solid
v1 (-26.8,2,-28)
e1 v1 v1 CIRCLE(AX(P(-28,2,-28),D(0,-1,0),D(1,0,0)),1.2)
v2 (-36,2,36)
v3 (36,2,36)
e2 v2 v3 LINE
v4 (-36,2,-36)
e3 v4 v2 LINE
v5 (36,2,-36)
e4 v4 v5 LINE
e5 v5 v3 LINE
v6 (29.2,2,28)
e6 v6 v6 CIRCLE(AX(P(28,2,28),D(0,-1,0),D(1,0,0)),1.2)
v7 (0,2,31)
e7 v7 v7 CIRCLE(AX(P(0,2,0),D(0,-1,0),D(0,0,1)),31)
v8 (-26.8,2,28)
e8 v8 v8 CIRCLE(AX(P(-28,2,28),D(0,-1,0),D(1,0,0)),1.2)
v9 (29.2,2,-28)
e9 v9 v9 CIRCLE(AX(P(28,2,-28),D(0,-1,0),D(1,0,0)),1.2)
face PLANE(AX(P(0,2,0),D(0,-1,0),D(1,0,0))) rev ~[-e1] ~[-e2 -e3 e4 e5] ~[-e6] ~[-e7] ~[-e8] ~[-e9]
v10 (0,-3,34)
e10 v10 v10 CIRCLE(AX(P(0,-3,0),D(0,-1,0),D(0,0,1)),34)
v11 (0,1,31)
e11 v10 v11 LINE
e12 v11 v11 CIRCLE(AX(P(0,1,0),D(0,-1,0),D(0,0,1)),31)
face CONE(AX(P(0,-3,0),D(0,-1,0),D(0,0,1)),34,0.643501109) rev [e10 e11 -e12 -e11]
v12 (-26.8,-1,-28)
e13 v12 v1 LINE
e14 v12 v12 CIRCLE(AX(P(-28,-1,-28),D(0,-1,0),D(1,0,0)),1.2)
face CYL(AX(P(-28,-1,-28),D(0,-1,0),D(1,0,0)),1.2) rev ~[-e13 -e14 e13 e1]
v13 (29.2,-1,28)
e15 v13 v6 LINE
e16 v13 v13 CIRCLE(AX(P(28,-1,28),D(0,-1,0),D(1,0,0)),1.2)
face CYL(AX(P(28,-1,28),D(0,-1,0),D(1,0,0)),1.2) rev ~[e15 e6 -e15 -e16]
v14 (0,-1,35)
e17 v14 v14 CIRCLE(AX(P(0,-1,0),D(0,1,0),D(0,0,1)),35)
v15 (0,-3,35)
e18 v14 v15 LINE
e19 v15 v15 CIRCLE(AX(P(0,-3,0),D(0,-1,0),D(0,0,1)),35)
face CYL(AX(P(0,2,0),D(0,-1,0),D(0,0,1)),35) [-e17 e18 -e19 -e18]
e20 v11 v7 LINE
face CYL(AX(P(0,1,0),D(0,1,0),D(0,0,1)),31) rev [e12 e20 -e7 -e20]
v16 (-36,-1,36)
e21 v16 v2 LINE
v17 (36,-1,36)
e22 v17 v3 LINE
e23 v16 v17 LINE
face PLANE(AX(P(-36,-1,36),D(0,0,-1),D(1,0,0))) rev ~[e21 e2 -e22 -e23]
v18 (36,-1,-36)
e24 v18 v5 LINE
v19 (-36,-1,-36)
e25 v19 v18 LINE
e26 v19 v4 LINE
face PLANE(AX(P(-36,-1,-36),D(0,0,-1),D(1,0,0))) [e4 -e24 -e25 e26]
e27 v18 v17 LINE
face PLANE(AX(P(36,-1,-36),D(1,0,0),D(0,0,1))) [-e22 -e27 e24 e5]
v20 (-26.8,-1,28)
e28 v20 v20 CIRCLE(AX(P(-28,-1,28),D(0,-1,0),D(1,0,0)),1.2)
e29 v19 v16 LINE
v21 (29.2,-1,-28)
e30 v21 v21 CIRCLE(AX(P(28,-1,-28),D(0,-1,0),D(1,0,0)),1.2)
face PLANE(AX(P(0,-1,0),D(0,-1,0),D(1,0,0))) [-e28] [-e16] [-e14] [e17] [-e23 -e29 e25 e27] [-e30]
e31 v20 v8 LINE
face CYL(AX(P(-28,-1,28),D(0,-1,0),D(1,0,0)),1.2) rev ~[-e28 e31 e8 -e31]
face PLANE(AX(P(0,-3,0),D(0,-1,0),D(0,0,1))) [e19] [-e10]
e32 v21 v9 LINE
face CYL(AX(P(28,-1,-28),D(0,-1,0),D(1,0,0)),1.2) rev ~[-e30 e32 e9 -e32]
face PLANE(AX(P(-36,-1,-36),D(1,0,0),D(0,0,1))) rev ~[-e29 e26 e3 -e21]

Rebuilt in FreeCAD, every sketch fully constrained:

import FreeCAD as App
import Part
import Sketcher

V = App.Vector
Q = App.Units.Quantity


def add_polygon(sketch, points):
    """Adds a closed chain of lines whose ends are joined by coincident constraints."""
    first, n = sketch.GeometryCount, len(points)
    for a, b in zip(points, points[1:] + points[:1]):
        sketch.addGeometry(Part.LineSegment(App.Vector(*a, 0), App.Vector(*b, 0)), False)
    for i in range(n):
        sketch.addConstraint(Sketcher.Constraint("Coincident", first + i, 2, first + (i + 1) % n, 1))

doc = App.newDocument("Part")
body = doc.addObject("PartDesign::Body", "Body")

# Sketch on YZ plane
sketch1 = doc.addObject("Sketcher::SketchObject", "Sketch")
body.addObject(sketch1)
sketch1.AttachmentSupport = (doc.YZ_Plane, [""])
sketch1.MapMode = "FlatFace"
add_polygon(sketch1, [(2, 35), (-3, 35), (-3, 34), (1, 31), (2, 31)])  # lines 0-4
sketch1.addConstraint([
    Sketcher.Constraint("Horizontal", 0),
    Sketcher.Constraint("Vertical", 1),
    Sketcher.Constraint("Horizontal", 3),
    Sketcher.Constraint("Vertical", 4),
    Sketcher.Constraint("Equal", 3, 1),
    Sketcher.Constraint("DistanceX", 0, 2, 0, 1, Q("5 mm")),
    Sketcher.Constraint("DistanceX", 3, 1, 3, 2, Q("1 mm")),
    Sketcher.Constraint("DistanceY", 4, 1, 4, 2, Q("4 mm")),
    Sketcher.Constraint("DistanceX", 0, 2, -1, 1, Q("3 mm")),
    Sketcher.Constraint("DistanceY", -1, 1, 0, 2, Q("35 mm")),
])
revolution = doc.addObject("PartDesign::Revolution", "Revolution")
body.addObject(revolution)
revolution.Profile = sketch1
revolution.ReferenceAxis = (sketch1, ["H_Axis"])
revolution.Angle = 360

# Sketch on XZ plane
sketch2 = doc.addObject("Sketcher::SketchObject", "Sketch001")
body.addObject(sketch2)
sketch2.AttachmentSupport = (doc.XZ_Plane, [""])
sketch2.MapMode = "FlatFace"
sketch2.AttachmentOffset = App.Placement(V(0, 0, 1), App.Rotation())
add_polygon(sketch2, [(-36, 36), (-36, -36), (36, -36), (36, 36)])  # lines 0-3
sketch2.addGeometry(Part.Circle(V(-28, -28, 0), V(0, 0, 1), 1.2), False)  # 4
sketch2.addGeometry(Part.Circle(V(28, -28, 0), V(0, 0, 1), 1.2), False)  # 5
sketch2.addGeometry(Part.Circle(V(-28, 28, 0), V(0, 0, 1), 1.2), False)  # 6
sketch2.addGeometry(Part.Circle(V(0, 0, 0), V(0, 0, 1), 35), False)  # 7
sketch2.addGeometry(Part.Circle(V(28, 28, 0), V(0, 0, 1), 1.2), False)  # 8
sketch2.addConstraint([
    Sketcher.Constraint("Vertical", 0),
    Sketcher.Constraint("Horizontal", 1),
    Sketcher.Constraint("Vertical", 2),
    Sketcher.Constraint("Horizontal", 3),
    Sketcher.Constraint("Coincident", 7, 3, -1, 1),
    Sketcher.Constraint("Equal", 4, 5),
    Sketcher.Constraint("Equal", 5, 6),
    Sketcher.Constraint("Equal", 6, 8),
    Sketcher.Constraint("Symmetric", 5, 3, 6, 3, -1, 1),
    Sketcher.Constraint("Symmetric", 4, 3, 8, 3, -1, 1),
    Sketcher.Constraint("Symmetric", 0, 2, 2, 2, -1, 1),
    Sketcher.Constraint("Symmetric", 4, 3, 5, 3, -2),
    Sketcher.Constraint("Equal", 3, 0),
    Sketcher.Constraint("Diameter", 7, Q("70 mm")),
    Sketcher.Constraint("Diameter", 4, Q("2.4 mm")),
    Sketcher.Constraint("DistanceX", 1, 1, 1, 2, Q("72 mm")),
    Sketcher.Constraint("DistanceX", 4, 3, -1, 1, Q("28 mm")),
    Sketcher.Constraint("DistanceY", 4, 3, -1, 1, Q("28 mm")),
])
pad1 = doc.addObject("PartDesign::Pad", "Pad")
body.addObject(pad1)
pad1.Profile = sketch2
pad1.Length = 3
pad1.Reversed = True

doc.recompute()
